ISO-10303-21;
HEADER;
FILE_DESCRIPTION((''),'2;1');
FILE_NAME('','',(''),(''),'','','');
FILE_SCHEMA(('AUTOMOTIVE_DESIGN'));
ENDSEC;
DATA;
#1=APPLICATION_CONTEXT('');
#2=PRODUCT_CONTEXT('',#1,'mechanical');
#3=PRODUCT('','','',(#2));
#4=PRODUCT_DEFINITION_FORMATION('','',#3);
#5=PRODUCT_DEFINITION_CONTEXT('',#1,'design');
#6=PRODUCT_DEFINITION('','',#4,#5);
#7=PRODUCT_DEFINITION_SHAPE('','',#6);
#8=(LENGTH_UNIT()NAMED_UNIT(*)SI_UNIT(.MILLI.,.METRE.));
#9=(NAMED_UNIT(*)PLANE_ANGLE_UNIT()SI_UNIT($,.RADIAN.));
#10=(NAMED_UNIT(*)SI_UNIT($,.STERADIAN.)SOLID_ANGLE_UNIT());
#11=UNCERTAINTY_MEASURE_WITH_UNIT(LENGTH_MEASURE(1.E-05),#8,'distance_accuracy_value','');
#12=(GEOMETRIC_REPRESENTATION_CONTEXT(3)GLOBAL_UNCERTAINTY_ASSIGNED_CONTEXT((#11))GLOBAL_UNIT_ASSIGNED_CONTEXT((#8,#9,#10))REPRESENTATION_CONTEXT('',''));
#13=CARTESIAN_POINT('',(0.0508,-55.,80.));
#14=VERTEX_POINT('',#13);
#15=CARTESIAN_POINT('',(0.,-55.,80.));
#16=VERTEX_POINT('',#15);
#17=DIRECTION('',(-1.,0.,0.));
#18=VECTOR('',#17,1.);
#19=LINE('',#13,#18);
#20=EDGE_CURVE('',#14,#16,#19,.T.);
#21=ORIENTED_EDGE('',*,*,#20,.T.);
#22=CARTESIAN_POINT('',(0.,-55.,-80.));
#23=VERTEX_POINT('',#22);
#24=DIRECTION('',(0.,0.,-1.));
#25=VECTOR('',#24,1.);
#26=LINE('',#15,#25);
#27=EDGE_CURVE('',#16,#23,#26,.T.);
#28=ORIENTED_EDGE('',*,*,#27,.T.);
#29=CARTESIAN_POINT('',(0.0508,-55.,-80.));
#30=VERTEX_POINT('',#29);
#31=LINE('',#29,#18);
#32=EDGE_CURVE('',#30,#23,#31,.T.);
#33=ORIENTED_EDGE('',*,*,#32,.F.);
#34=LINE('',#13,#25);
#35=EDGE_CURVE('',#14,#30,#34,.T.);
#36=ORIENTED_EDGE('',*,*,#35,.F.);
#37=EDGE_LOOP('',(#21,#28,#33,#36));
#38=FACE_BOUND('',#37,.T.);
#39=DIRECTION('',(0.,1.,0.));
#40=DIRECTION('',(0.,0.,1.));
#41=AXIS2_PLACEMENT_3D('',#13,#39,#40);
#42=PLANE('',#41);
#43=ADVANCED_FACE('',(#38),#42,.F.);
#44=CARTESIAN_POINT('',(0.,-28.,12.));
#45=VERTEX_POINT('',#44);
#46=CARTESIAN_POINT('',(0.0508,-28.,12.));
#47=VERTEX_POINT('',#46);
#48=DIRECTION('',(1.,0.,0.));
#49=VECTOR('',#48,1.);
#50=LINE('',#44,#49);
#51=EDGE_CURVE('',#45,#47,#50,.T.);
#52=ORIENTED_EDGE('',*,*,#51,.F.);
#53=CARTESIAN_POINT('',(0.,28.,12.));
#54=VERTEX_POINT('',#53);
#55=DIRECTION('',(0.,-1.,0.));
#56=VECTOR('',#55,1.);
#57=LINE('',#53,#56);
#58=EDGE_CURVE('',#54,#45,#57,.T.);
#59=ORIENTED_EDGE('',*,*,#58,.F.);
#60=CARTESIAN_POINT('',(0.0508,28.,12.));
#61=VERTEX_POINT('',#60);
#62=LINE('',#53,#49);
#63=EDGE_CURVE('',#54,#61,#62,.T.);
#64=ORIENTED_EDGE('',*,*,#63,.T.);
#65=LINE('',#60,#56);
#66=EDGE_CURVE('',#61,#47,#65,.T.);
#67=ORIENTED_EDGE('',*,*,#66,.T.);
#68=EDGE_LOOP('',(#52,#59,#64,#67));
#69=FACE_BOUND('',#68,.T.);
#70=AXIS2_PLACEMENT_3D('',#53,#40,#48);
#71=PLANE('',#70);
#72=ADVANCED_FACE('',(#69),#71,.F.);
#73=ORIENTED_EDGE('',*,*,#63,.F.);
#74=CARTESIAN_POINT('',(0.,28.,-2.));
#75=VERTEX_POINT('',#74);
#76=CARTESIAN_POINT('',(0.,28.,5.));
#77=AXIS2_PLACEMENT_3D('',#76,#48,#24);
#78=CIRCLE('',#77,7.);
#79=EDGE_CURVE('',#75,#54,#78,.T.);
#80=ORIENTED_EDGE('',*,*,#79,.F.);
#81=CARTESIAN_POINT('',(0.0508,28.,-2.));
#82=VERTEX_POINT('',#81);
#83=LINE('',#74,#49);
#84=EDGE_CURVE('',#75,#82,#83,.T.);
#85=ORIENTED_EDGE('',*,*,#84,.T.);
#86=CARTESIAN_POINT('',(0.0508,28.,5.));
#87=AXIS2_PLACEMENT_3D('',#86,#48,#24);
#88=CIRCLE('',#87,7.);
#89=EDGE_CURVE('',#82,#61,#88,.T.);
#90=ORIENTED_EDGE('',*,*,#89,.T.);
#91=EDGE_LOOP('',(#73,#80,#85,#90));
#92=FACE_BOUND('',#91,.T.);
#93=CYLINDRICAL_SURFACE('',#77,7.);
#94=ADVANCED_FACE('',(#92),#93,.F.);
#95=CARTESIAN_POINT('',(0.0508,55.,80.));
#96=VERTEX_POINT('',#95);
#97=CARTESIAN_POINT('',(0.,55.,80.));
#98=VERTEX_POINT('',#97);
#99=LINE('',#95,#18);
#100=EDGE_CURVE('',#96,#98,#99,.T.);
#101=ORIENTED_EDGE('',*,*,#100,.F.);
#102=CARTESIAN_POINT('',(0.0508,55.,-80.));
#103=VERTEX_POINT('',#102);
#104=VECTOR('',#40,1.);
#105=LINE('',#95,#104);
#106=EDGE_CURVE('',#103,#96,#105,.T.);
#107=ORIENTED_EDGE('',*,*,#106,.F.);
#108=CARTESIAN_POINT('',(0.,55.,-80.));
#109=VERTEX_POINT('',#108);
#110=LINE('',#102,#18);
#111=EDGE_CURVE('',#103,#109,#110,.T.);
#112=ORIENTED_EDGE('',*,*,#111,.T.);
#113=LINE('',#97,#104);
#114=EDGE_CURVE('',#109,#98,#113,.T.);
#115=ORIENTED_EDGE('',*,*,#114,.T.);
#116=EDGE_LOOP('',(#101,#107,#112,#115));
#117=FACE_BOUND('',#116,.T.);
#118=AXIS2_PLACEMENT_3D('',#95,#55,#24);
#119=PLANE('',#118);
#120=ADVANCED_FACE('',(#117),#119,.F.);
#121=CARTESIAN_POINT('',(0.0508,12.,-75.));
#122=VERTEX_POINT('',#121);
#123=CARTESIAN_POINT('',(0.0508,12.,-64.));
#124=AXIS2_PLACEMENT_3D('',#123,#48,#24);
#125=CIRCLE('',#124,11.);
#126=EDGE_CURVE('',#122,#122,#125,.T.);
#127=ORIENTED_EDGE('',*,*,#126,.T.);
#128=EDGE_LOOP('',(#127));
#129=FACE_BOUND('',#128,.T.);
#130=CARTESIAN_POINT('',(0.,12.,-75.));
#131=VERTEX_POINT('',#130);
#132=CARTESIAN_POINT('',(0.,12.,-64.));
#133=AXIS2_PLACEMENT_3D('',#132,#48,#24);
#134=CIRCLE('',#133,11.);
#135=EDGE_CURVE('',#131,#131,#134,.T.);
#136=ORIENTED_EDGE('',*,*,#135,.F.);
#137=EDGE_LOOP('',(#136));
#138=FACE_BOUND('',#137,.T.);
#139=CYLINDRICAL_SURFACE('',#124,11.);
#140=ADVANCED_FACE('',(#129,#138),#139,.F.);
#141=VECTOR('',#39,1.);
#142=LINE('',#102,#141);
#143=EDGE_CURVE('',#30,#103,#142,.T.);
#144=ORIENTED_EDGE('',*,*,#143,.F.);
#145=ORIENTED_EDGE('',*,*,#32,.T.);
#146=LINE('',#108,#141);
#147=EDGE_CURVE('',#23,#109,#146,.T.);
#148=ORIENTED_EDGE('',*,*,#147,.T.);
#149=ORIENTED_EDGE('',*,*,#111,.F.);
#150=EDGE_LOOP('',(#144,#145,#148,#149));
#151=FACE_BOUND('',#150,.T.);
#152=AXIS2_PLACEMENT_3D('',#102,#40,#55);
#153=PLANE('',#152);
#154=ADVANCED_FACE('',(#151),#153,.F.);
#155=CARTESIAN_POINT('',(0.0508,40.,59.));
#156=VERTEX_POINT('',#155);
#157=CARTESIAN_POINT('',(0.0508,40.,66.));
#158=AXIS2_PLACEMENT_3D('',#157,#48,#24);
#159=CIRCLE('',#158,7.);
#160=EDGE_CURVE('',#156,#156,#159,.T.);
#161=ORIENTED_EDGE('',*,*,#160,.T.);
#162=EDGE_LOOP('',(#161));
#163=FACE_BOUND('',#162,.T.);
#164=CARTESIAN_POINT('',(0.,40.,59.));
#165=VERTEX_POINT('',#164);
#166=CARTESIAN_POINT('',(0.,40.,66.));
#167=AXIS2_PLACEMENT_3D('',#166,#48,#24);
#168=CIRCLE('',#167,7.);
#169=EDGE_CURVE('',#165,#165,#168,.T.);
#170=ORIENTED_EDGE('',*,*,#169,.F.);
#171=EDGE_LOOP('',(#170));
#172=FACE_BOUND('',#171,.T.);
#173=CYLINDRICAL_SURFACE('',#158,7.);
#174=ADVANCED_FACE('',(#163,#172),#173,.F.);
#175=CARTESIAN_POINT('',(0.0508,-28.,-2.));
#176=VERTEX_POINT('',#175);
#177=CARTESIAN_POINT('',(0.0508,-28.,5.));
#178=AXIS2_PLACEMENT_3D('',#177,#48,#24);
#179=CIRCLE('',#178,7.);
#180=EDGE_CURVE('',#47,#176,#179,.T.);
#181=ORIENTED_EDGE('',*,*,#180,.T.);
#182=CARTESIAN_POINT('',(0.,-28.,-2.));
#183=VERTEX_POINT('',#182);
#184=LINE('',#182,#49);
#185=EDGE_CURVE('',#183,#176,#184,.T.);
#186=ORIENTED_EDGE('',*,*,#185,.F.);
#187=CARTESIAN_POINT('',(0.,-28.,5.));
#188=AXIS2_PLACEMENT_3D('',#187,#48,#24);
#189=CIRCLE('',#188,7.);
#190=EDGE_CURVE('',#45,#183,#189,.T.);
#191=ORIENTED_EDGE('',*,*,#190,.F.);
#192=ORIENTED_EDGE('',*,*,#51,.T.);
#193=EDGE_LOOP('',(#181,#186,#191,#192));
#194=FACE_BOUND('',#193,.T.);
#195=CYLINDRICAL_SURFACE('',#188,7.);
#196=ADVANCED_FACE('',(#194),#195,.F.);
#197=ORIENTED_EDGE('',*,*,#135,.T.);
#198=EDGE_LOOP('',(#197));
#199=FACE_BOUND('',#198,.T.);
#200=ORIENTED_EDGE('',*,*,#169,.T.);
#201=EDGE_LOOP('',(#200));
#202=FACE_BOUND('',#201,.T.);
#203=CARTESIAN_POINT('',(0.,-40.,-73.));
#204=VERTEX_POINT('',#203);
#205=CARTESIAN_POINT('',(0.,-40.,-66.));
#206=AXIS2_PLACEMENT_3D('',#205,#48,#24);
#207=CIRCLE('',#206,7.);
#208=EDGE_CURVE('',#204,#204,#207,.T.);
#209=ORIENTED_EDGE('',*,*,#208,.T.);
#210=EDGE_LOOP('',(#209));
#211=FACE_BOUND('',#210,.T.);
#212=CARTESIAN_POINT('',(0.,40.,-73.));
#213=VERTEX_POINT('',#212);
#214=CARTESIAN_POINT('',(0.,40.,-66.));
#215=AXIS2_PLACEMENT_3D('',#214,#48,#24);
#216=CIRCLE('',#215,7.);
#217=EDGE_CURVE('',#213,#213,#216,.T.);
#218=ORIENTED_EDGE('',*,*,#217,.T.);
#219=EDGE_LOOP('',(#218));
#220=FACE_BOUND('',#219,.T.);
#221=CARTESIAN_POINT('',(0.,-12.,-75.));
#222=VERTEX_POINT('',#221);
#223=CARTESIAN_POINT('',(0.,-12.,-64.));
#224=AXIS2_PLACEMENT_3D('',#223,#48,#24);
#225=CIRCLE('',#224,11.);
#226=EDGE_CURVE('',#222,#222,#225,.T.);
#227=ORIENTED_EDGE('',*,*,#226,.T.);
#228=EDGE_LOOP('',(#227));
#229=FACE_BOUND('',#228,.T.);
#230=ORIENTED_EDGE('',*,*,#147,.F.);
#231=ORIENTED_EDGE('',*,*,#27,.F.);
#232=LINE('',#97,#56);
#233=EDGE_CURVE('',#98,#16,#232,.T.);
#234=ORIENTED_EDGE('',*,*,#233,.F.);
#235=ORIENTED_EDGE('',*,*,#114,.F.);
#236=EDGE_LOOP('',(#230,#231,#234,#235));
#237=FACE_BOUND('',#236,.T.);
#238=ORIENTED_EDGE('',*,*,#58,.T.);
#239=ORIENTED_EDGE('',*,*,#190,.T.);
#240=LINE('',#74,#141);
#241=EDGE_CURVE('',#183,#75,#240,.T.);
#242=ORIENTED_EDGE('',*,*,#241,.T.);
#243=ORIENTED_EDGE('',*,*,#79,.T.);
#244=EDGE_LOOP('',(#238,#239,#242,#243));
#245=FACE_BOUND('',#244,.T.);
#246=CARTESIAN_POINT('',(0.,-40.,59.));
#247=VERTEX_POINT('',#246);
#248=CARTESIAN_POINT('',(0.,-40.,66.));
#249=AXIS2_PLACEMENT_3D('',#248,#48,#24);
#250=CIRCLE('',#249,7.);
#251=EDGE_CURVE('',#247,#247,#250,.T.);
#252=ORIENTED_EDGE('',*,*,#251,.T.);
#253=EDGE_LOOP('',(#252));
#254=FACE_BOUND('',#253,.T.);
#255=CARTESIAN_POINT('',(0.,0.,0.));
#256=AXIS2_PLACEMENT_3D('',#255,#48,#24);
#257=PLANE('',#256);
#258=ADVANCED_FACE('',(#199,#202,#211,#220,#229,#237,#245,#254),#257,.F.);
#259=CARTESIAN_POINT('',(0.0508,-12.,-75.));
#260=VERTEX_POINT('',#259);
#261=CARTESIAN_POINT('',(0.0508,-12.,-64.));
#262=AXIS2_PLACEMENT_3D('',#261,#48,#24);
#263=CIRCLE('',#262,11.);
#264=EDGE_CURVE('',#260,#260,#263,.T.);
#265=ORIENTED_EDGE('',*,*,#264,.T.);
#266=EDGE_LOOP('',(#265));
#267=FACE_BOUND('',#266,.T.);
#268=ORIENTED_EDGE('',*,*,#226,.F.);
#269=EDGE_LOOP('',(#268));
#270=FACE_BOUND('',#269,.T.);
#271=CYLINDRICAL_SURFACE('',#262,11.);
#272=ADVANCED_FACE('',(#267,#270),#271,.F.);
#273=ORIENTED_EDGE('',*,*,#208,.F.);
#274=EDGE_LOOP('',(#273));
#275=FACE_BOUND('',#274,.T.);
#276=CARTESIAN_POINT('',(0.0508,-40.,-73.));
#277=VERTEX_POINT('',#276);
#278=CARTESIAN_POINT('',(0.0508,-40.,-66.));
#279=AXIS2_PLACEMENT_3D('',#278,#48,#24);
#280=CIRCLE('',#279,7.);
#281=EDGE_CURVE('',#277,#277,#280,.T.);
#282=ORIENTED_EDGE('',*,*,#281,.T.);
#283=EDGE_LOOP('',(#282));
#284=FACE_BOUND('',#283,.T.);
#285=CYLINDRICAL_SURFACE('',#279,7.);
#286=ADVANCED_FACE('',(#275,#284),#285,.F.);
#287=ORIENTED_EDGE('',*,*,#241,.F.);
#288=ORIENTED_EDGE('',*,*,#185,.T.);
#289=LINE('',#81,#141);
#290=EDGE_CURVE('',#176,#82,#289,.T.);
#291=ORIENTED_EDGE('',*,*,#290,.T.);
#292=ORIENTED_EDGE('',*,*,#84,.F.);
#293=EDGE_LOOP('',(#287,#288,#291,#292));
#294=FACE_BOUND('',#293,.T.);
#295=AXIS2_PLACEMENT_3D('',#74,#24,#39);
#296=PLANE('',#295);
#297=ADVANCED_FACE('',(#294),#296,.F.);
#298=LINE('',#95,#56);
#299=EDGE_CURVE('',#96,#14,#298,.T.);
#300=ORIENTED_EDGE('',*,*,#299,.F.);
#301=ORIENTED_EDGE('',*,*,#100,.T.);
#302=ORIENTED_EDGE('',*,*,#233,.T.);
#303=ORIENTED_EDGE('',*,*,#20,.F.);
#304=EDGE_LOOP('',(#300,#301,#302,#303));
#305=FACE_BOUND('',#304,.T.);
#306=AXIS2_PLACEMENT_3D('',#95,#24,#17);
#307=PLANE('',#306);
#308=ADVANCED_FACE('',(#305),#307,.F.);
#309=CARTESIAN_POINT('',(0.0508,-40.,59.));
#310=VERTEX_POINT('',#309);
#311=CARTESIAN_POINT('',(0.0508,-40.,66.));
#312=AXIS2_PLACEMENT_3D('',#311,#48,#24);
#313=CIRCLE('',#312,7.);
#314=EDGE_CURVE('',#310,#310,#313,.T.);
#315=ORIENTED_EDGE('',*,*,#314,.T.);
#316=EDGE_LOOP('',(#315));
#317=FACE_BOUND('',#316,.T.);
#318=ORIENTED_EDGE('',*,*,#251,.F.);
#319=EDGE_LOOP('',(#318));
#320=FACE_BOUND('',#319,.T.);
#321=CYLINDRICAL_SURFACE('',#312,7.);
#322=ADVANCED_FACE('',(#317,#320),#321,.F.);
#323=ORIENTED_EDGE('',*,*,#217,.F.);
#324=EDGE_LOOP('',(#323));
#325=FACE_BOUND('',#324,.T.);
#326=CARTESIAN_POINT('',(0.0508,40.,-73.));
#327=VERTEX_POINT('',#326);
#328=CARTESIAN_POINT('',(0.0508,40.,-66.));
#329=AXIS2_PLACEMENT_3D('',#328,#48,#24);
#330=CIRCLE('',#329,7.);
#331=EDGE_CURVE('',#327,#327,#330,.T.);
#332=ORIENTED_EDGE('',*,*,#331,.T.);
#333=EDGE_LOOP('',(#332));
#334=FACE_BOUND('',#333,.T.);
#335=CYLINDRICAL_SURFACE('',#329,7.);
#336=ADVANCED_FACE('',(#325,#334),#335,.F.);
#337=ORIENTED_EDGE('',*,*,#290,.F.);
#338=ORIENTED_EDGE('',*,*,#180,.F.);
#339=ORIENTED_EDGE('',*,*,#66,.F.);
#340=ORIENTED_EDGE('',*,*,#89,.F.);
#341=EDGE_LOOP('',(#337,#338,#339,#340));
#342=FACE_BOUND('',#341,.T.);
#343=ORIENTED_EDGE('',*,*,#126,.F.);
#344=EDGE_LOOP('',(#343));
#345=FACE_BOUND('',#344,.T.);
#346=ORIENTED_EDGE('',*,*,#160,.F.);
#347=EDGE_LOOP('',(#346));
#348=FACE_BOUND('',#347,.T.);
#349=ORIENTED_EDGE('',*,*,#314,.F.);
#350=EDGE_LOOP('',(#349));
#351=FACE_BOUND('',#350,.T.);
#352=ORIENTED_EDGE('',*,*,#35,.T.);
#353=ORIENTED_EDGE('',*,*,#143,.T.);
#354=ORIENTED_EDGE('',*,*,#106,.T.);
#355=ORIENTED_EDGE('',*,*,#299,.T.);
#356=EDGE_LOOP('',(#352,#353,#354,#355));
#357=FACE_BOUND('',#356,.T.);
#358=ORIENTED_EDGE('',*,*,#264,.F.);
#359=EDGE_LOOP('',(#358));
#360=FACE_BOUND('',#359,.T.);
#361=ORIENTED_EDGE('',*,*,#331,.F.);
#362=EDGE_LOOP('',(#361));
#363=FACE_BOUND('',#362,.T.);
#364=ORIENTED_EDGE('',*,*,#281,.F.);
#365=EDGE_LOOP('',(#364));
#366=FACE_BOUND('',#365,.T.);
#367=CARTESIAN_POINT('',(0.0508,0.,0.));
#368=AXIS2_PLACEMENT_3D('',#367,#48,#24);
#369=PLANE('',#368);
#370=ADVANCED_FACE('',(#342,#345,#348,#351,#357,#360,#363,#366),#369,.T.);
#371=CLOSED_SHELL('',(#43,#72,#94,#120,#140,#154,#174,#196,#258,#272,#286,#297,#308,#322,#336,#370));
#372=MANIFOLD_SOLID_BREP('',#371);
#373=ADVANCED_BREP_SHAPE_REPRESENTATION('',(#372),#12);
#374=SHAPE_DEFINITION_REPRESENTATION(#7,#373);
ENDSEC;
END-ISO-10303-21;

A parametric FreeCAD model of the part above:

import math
import FreeCAD as App
import Part
import Sketcher
Q = App.Units.Quantity

doc = App.newDocument("Part")
body = doc.addObject("PartDesign::Body", "Body")

# Sketch on YZ plane
sketch1 = body.newObject("Sketcher::SketchObject", "Sketch")
sketch1.AttachmentSupport = (doc.getObject("YZ_Plane"), [""])
sketch1.MapMode = "FlatFace"
sketch1.addGeometry([
    Part.LineSegment(App.Vector(55, 80, 0), App.Vector(-55, 80, 0)),
    Part.LineSegment(App.Vector(-55, 80, 0), App.Vector(-55, -80, 0)),
    Part.LineSegment(App.Vector(-55, -80, 0), App.Vector(55, -80, 0)),
    Part.LineSegment(App.Vector(55, -80, 0), App.Vector(55, 80, 0)),
], False)
sketch1.addConstraint([
    Sketcher.Constraint("Coincident", 0, 2, 1, 1),
    Sketcher.Constraint("Coincident", 1, 2, 2, 1),
    Sketcher.Constraint("Coincident", 2, 2, 3, 1),
    Sketcher.Constraint("Coincident", 3, 2, 0, 1),
    Sketcher.Constraint("Horizontal", 0),
    Sketcher.Constraint("Vertical", 1),
    Sketcher.Constraint("Horizontal", 2),
    Sketcher.Constraint("Vertical", 3),
    Sketcher.Constraint("Symmetric", 0, 2, 2, 2, -1, 1),
    Sketcher.Constraint("DistanceX", 0, 2, 0, 1, Q("110 mm")),
    Sketcher.Constraint("DistanceY", 1, 2, 1, 1, Q("160 mm")),
])
pad1 = body.newObject("PartDesign::Pad", "Pad")
pad1.Profile = sketch1
pad1.Length = 0.0508

# Sketch on YZ plane
sketch2 = body.newObject("Sketcher::SketchObject", "Sketch001")
sketch2.AttachmentSupport = (doc.getObject("YZ_Plane"), [""])
sketch2.MapMode = "FlatFace"
sketch2.AttachmentOffset = App.Placement(App.Vector(0, 0, 0.0508), App.Rotation())
sketch2.addGeometry([
    Part.Circle(App.Vector(40, 66, 0), App.Vector(0, 0, 1), 7),
    Part.Circle(App.Vector(40, -66, 0), App.Vector(0, 0, 1), 7),
    Part.Circle(App.Vector(-40, -66, 0), App.Vector(0, 0, 1), 7),
    Part.Circle(App.Vector(-40, 66, 0), App.Vector(0, 0, 1), 7),
], False)
sketch2.addConstraint([
    Sketcher.Constraint("Equal", 0, 1),
    Sketcher.Constraint("Equal", 1, 2),
    Sketcher.Constraint("Equal", 2, 3),
    Sketcher.Constraint("Symmetric", 0, 3, 2, 3, -1, 1),
    Sketcher.Constraint("Symmetric", 1, 3, 3, 3, -1, 1),
    Sketcher.Constraint("Symmetric", 1, 3, 2, 3, -2),
    Sketcher.Constraint("Diameter", 0, Q("14 mm")),
    Sketcher.Constraint("DistanceX", -1, 1, 0, 3, Q("40 mm")),
    Sketcher.Constraint("DistanceY", -1, 1, 0, 3, Q("66 mm")),
])
doc.recompute()
hole = body.newObject("PartDesign::Hole", "Hole")
hole.Profile = sketch2
hole.ThreadType = "None"
hole.Diameter = 14
hole.DepthType = "ThroughAll"

# Sketch on YZ plane
sketch3 = body.newObject("Sketcher::SketchObject", "Sketch002")
sketch3.AttachmentSupport = (doc.getObject("YZ_Plane"), [""])
sketch3.MapMode = "FlatFace"
sketch3.AttachmentOffset = App.Placement(App.Vector(0, 0, 0.0508), App.Rotation())
sketch3.addGeometry([
    Part.LineSegment(App.Vector(-28, -2, 0), App.Vector(28, -2, 0)),
    Part.ArcOfCircle(Part.Circle(App.Vector(28, 5, 0), App.Vector(0, 0, 1), 7), math.radians(-90), math.radians(90)),
    Part.LineSegment(App.Vector(28, 12, 0), App.Vector(-28, 12, 0)),
    Part.ArcOfCircle(Part.Circle(App.Vector(-28, 5, 0), App.Vector(0, 0, 1), 7), math.radians(90), math.radians(270)),
], False)
sketch3.addConstraint([
    Sketcher.Constraint("Tangent", 0, 2, 1, 1),
    Sketcher.Constraint("Tangent", 1, 2, 2, 1),
    Sketcher.Constraint("Tangent", 2, 2, 3, 1),
    Sketcher.Constraint("Tangent", 3, 2, 0, 1),
    Sketcher.Constraint("Horizontal", 0),
    Sketcher.Constraint("Horizontal", 2),
    Sketcher.Constraint("Radius", 1, Q("7 mm")),
    Sketcher.Constraint("DistanceX", 0, 1, 0, 2, Q("56 mm")),
    Sketcher.Constraint("DistanceX", -1, 1, 1, 3, Q("28 mm")),
    Sketcher.Constraint("DistanceY", -1, 1, 1, 3, Q("5 mm")),
])
pocket1 = body.newObject("PartDesign::Pocket", "Pocket")
pocket1.Profile = sketch3
pocket1.Type = "ThroughAll"

# Sketch on YZ plane
sketch4 = body.newObject("Sketcher::SketchObject", "Sketch003")
sketch4.AttachmentSupport = (doc.getObject("YZ_Plane"), [""])
sketch4.MapMode = "FlatFace"
sketch4.AttachmentOffset = App.Placement(App.Vector(0, 0, 0.0508), App.Rotation())
sketch4.addGeometry([
    Part.Circle(App.Vector(12, -64, 0), App.Vector(0, 0, 1), 11),
    Part.Circle(App.Vector(-12, -64, 0), App.Vector(0, 0, 1), 11),
], False)
sketch4.addConstraint([
    Sketcher.Constraint("Equal", 0, 1),
    Sketcher.Constraint("Symmetric", 0, 3, 1, 3, -2),
    Sketcher.Constraint("Diameter", 0, Q("22 mm")),
    Sketcher.Constraint("DistanceX", -1, 1, 0, 3, Q("12 mm")),
    Sketcher.Constraint("DistanceY", 0, 3, -1, 1, Q("64 mm")),
])
doc.recompute()
hole2 = body.newObject("PartDesign::Hole", "Hole001")
hole2.Profile = sketch4
hole2.ThreadType = "None"
hole2.Diameter = 22
hole2.DepthType = "ThroughAll"

doc.recompute()
